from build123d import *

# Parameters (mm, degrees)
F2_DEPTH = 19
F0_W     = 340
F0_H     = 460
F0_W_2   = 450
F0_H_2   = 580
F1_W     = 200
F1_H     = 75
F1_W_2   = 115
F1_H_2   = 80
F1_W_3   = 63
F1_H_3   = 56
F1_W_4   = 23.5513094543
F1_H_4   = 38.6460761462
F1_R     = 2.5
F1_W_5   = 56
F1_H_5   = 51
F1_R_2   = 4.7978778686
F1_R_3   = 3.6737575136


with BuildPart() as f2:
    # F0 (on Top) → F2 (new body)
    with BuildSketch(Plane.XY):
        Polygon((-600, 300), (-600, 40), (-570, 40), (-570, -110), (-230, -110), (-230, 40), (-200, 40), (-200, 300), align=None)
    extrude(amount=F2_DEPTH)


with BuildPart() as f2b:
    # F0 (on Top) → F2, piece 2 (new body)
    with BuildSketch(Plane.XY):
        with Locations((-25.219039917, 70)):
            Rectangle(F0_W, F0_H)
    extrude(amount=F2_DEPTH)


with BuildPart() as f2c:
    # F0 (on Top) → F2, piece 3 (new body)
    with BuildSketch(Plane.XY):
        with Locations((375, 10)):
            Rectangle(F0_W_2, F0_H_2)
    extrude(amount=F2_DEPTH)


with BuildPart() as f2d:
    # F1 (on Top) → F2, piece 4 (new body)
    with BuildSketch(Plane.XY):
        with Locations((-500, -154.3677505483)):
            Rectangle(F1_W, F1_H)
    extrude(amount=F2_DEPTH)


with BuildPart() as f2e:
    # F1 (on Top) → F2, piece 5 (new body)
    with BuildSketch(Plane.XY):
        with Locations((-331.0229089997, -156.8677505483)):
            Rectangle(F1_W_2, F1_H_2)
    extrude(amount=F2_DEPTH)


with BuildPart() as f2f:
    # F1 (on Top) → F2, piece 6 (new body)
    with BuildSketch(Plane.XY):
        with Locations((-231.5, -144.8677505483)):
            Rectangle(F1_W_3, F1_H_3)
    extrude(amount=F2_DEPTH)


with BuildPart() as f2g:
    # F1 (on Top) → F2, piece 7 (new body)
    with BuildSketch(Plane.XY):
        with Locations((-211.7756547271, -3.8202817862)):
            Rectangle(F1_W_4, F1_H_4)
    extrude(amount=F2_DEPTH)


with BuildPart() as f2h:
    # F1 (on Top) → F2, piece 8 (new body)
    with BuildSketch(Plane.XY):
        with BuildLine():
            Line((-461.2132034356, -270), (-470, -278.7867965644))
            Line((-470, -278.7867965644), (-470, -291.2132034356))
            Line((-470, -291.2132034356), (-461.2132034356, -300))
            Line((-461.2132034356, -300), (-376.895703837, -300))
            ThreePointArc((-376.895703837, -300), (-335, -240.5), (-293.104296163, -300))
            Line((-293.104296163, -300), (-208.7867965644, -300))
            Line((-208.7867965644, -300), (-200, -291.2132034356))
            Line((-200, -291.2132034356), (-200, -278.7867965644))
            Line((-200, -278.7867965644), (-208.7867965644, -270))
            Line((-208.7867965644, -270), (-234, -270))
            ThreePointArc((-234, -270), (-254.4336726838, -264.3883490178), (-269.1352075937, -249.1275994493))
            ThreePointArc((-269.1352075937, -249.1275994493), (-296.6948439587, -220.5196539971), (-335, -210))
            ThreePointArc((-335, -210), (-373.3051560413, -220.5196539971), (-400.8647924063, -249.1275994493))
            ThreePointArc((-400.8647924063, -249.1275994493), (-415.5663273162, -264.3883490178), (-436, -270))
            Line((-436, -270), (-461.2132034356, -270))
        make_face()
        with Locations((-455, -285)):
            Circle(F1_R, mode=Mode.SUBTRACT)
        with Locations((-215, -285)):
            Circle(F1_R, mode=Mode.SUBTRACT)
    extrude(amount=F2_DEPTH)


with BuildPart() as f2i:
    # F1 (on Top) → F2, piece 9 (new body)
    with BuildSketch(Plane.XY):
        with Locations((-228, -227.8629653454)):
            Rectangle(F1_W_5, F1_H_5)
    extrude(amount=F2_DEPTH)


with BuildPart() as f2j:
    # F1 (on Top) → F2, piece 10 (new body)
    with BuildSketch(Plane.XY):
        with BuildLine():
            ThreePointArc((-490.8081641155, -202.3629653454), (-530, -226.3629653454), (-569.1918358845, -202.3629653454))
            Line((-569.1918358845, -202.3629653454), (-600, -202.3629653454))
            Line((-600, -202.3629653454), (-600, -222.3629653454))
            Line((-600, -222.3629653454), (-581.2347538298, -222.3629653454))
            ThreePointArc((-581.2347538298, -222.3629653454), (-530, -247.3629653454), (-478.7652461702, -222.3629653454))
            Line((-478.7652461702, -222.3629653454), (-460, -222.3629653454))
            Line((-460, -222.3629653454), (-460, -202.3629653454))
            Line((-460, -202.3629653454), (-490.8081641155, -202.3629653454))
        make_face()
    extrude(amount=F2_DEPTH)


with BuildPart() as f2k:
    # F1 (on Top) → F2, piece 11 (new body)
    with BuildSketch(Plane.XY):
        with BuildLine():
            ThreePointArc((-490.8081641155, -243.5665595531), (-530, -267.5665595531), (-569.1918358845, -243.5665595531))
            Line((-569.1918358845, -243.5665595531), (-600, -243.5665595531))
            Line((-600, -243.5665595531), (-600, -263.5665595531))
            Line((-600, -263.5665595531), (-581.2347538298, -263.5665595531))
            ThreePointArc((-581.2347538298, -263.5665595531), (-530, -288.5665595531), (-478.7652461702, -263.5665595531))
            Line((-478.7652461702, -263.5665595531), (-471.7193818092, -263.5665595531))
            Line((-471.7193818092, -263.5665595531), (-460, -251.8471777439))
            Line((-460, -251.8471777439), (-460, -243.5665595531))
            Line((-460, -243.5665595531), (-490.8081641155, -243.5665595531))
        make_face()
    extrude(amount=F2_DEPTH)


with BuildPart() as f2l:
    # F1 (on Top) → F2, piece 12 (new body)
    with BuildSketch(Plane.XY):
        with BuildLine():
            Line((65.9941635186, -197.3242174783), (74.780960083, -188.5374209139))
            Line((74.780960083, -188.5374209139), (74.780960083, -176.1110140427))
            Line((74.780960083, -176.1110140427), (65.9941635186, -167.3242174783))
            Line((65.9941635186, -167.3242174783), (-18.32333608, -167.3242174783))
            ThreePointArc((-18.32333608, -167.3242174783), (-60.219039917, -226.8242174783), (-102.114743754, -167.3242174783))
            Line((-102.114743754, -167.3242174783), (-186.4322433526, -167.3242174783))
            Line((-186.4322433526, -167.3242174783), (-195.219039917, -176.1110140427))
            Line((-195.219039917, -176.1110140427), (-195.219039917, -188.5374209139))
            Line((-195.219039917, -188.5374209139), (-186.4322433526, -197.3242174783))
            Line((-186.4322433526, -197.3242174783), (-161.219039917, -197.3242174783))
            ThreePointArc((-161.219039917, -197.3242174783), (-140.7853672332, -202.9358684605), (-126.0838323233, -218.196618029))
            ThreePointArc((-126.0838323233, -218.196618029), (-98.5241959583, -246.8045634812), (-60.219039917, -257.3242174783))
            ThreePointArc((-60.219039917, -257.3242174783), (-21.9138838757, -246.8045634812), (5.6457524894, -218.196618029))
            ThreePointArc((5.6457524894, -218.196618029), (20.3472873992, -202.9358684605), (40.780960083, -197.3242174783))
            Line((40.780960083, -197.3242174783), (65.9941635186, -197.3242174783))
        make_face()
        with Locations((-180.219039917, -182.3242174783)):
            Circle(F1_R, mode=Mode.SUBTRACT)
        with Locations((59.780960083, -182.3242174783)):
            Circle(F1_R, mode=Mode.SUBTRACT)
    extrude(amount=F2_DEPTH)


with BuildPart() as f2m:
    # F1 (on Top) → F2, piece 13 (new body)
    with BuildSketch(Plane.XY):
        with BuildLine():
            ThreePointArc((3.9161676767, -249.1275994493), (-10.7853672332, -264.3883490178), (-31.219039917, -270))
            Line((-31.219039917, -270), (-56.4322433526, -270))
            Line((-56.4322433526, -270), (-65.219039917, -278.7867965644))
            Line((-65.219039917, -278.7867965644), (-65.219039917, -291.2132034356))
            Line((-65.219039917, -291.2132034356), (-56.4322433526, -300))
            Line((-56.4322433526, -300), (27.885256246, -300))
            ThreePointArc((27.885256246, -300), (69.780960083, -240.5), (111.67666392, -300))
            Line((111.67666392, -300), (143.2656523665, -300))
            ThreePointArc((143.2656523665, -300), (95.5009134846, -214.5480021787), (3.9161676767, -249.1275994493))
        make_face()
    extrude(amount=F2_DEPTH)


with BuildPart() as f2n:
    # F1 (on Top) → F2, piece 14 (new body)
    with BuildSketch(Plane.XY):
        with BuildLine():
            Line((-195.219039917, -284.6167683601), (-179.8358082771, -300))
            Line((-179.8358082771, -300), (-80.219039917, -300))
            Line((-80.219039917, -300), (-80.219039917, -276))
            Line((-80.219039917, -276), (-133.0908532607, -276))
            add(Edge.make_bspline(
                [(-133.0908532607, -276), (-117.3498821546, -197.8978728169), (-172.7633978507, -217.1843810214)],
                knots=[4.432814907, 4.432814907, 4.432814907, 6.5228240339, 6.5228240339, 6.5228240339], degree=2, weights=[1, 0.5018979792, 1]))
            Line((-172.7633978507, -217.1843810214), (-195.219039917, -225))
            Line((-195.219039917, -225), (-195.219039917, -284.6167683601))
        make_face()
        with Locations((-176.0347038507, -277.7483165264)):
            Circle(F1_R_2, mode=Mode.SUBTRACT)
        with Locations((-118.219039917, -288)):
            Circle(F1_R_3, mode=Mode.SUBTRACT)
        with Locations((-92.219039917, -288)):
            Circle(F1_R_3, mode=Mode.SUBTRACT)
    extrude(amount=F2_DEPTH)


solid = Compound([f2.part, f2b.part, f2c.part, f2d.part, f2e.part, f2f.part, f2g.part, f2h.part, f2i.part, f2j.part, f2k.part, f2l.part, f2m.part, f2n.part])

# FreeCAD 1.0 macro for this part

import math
import FreeCAD as App
import Part
import Sketcher
Q = App.Units.Quantity


def add_polygon(sketch, points):
    """Adds a closed chain of lines whose ends are joined by coincident constraints."""
    first, n = sketch.GeometryCount, len(points)
    for a, b in zip(points, points[1:] + points[:1]):
        sketch.addGeometry(Part.LineSegment(App.Vector(*a, 0), App.Vector(*b, 0)), False)
    for i in range(n):
        sketch.addConstraint(Sketcher.Constraint("Coincident", first + i, 2, first + (i + 1) % n, 1))

doc = App.newDocument("Part")
body = doc.addObject("PartDesign::Body", "Body")

sketch1 = body.newObject("Sketcher::SketchObject", "Sketch")
sketch1.AttachmentSupport = (doc.getObject("XY_Plane"), [""])
sketch1.MapMode = "FlatFace"
add_polygon(sketch1, [(-600, 300), (-600, 40), (-570, 40), (-570, -110), (-230, -110), (-230, 40), (-200, 40), (-200, 300)])
sketch1.addConstraint(Sketcher.Constraint("Vertical", 0))
sketch1.addConstraint(Sketcher.Constraint("Horizontal", 1))
sketch1.addConstraint(Sketcher.Constraint("Vertical", 2))
sketch1.addConstraint(Sketcher.Constraint("Horizontal", 3))
sketch1.addConstraint(Sketcher.Constraint("Vertical", 4))
sketch1.addConstraint(Sketcher.Constraint("Horizontal", 5))
sketch1.addConstraint(Sketcher.Constraint("Vertical", 6))
sketch1.addConstraint(Sketcher.Constraint("Horizontal", 7))
sketch1.addConstraint(Sketcher.Constraint("Horizontal", 1, 2, 4, 2))
sketch1.addConstraint(Sketcher.Constraint("Equal", 1, 5))
sketch1.addConstraint(Sketcher.Constraint("DistanceX", 1, 1, 1, 2, 30.0))
sketch1.addConstraint(Sketcher.Constraint("DistanceX", 3, 1, 3, 2, 340.0))
sketch1.addConstraint(Sketcher.Constraint("DistanceY", 0, 2, 0, 1, 260.0))
sketch1.addConstraint(Sketcher.Constraint("DistanceY", 2, 2, 2, 1, 150.0))
sketch1.addConstraint(Sketcher.Constraint("DistanceX", 0, 2, -1, 1, 600.0))
sketch1.addConstraint(Sketcher.Constraint("DistanceY", -1, 1, 0, 2, 40.0))
pad1 = body.newObject("PartDesign::Pad", "Pad")
pad1.Profile = sketch1
pad1.Length = 19
body2 = doc.addObject("PartDesign::Body", "Body001")

sketch2 = body2.newObject("Sketcher::SketchObject", "Sketch001")
sketch2.AttachmentSupport = (doc.getObject("XY_Plane001"), [""])
sketch2.MapMode = "FlatFace"
add_polygon(sketch2, [(-195.21904, 300), (-195.21904, -160), (144.78096, -160), (144.78096, 300)])
sketch2.addConstraint(Sketcher.Constraint("Vertical", 0))
sketch2.addConstraint(Sketcher.Constraint("Horizontal", 1))
sketch2.addConstraint(Sketcher.Constraint("Vertical", 2))
sketch2.addConstraint(Sketcher.Constraint("Horizontal", 3))
sketch2.addConstraint(Sketcher.Constraint("DistanceX", 1, 1, 1, 2, 340.0))
sketch2.addConstraint(Sketcher.Constraint("DistanceY", 0, 2, 0, 1, 460.0))
sketch2.addConstraint(Sketcher.Constraint("DistanceY", 0, 2, -1, 1, 160.0))
sketch2.addConstraint(Sketcher.Constraint("DistanceX", 0, 2, -1, 1, 195.21904))
pad2 = body2.newObject("PartDesign::Pad", "Pad001")
pad2.Profile = sketch2
pad2.Length = 19
body3 = doc.addObject("PartDesign::Body", "Body002")

sketch3 = body3.newObject("Sketcher::SketchObject", "Sketch002")
sketch3.AttachmentSupport = (doc.getObject("XY_Plane002"), [""])
sketch3.MapMode = "FlatFace"
add_polygon(sketch3, [(150, 300), (150, -280), (600, -280), (600, 300)])
sketch3.addConstraint(Sketcher.Constraint("Vertical", 0))
sketch3.addConstraint(Sketcher.Constraint("Horizontal", 1))
sketch3.addConstraint(Sketcher.Constraint("Vertical", 2))
sketch3.addConstraint(Sketcher.Constraint("Horizontal", 3))
sketch3.addConstraint(Sketcher.Constraint("DistanceX", 1, 1, 1, 2, 450.0))
sketch3.addConstraint(Sketcher.Constraint("DistanceY", 0, 2, 0, 1, 580.0))
sketch3.addConstraint(Sketcher.Constraint("DistanceX", -1, 1, 0, 2, 150.0))
sketch3.addConstraint(Sketcher.Constraint("DistanceY", 0, 2, -1, 1, 280.0))
pad3 = body3.newObject("PartDesign::Pad", "Pad002")
pad3.Profile = sketch3
pad3.Length = 19
body4 = doc.addObject("PartDesign::Body", "Body003")

sketch4 = body4.newObject("Sketcher::SketchObject", "Sketch003")
sketch4.AttachmentSupport = (doc.getObject("XY_Plane003"), [""])
sketch4.MapMode = "FlatFace"
add_polygon(sketch4, [(-600, -116.867751), (-600, -191.867751), (-400, -191.867751), (-400, -116.867751)])
sketch4.addConstraint(Sketcher.Constraint("Vertical", 0))
sketch4.addConstraint(Sketcher.Constraint("Horizontal", 1))
sketch4.addConstraint(Sketcher.Constraint("Vertical", 2))
sketch4.addConstraint(Sketcher.Constraint("Horizontal", 3))
sketch4.addConstraint(Sketcher.Constraint("DistanceX", 1, 1, 1, 2, 200.0))
sketch4.addConstraint(Sketcher.Constraint("DistanceY", 0, 2, 0, 1, 75.0))
sketch4.addConstraint(Sketcher.Constraint("DistanceX", 0, 2, -1, 1, 600.0))
sketch4.addConstraint(Sketcher.Constraint("DistanceY", 0, 2, -1, 1, 191.867751))
pad4 = body4.newObject("PartDesign::Pad", "Pad003")
pad4.Profile = sketch4
pad4.Length = 19
body5 = doc.addObject("PartDesign::Body", "Body004")

sketch5 = body5.newObject("Sketcher::SketchObject", "Sketch004")
sketch5.AttachmentSupport = (doc.getObject("XY_Plane004"), [""])
sketch5.MapMode = "FlatFace"
add_polygon(sketch5, [(-388.522909, -116.867751), (-388.522909, -196.867751), (-273.522909, -196.867751), (-273.522909, -116.867751)])
sketch5.addConstraint(Sketcher.Constraint("Vertical", 0))
sketch5.addConstraint(Sketcher.Constraint("Horizontal", 1))
sketch5.addConstraint(Sketcher.Constraint("Vertical", 2))
sketch5.addConstraint(Sketcher.Constraint("Horizontal", 3))
sketch5.addConstraint(Sketcher.Constraint("DistanceX", 1, 1, 1, 2, 115.0))
sketch5.addConstraint(Sketcher.Constraint("DistanceY", 0, 2, 0, 1, 80.0))
sketch5.addConstraint(Sketcher.Constraint("DistanceX", 0, 2, -1, 1, 388.522909))
sketch5.addConstraint(Sketcher.Constraint("DistanceY", 0, 2, -1, 1, 196.867751))
pad5 = body5.newObject("PartDesign::Pad", "Pad004")
pad5.Profile = sketch5
pad5.Length = 19
body6 = doc.addObject("PartDesign::Body", "Body005")

sketch6 = body6.newObject("Sketcher::SketchObject", "Sketch005")
sketch6.AttachmentSupport = (doc.getObject("XY_Plane005"), [""])
sketch6.MapMode = "FlatFace"
add_polygon(sketch6, [(-263, -116.867751), (-263, -172.867751), (-200, -172.867751), (-200, -116.867751)])
sketch6.addConstraint(Sketcher.Constraint("Vertical", 0))
sketch6.addConstraint(Sketcher.Constraint("Horizontal", 1))
sketch6.addConstraint(Sketcher.Constraint("Vertical", 2))
sketch6.addConstraint(Sketcher.Constraint("Horizontal", 3))
sketch6.addConstraint(Sketcher.Constraint("DistanceX", 1, 1, 1, 2, 63.0))
sketch6.addConstraint(Sketcher.Constraint("DistanceY", 0, 2, 0, 1, 56.0))
sketch6.addConstraint(Sketcher.Constraint("DistanceX", 0, 2, -1, 1, 263.0))
sketch6.addConstraint(Sketcher.Constraint("DistanceY", 0, 2, -1, 1, 172.867751))
pad6 = body6.newObject("PartDesign::Pad", "Pad005")
pad6.Profile = sketch6
pad6.Length = 19
body7 = doc.addObject("PartDesign::Body", "Body006")

sketch7 = body7.newObject("Sketcher::SketchObject", "Sketch006")
sketch7.AttachmentSupport = (doc.getObject("XY_Plane006"), [""])
sketch7.MapMode = "FlatFace"
add_polygon(sketch7, [(-223.551309, 15.502756), (-223.551309, -23.14332), (-200, -23.14332), (-200, 15.502756)])
sketch7.addConstraint(Sketcher.Constraint("Vertical", 0))
sketch7.addConstraint(Sketcher.Constraint("Horizontal", 1))
sketch7.addConstraint(Sketcher.Constraint("Vertical", 2))
sketch7.addConstraint(Sketcher.Constraint("Horizontal", 3))
sketch7.addConstraint(Sketcher.Constraint("DistanceX", 1, 2, -1, 1, 200.0))
sketch7.addConstraint(Sketcher.Constraint("DistanceX", 1, 1, 1, 2, 23.551309))
sketch7.addConstraint(Sketcher.Constraint("DistanceY", 0, 2, 0, 1, 38.646076))
sketch7.addConstraint(Sketcher.Constraint("DistanceY", 0, 2, -1, 1, 23.14332))
pad7 = body7.newObject("PartDesign::Pad", "Pad006")
pad7.Profile = sketch7
pad7.Length = 19
body8 = doc.addObject("PartDesign::Body", "Body007")

sketch8 = body8.newObject("Sketcher::SketchObject", "Sketch007")
sketch8.AttachmentSupport = (doc.getObject("XY_Plane007"), [""])
sketch8.MapMode = "FlatFace"
sketch8.addGeometry(Part.LineSegment(App.Vector(-461.213203, -270, 0), App.Vector(-470, -278.786797, 0)), False)
sketch8.addGeometry(Part.LineSegment(App.Vector(-470, -278.786797, 0), App.Vector(-470, -291.213203, 0)), False)
sketch8.addGeometry(Part.LineSegment(App.Vector(-470, -291.213203, 0), App.Vector(-461.213203, -300, 0)), False)
sketch8.addGeometry(Part.LineSegment(App.Vector(-461.213203, -300, 0), App.Vector(-376.895704, -300, 0)), False)
sketch8.addGeometry(Part.ArcOfCircle(Part.Circle(App.Vector(-335, -285, 0), App.Vector(0, 0, 1), 44.5), math.radians(-19.698989), math.radians(199.698989)), False)
sketch8.addGeometry(Part.LineSegment(App.Vector(-293.104296, -300, 0), App.Vector(-208.786797, -300, 0)), False)
sketch8.addGeometry(Part.LineSegment(App.Vector(-208.786797, -300, 0), App.Vector(-200, -291.213203, 0)), False)
sketch8.addGeometry(Part.LineSegment(App.Vector(-200, -291.213203, 0), App.Vector(-200, -278.786797, 0)), False)
sketch8.addGeometry(Part.LineSegment(App.Vector(-200, -278.786797, 0), App.Vector(-208.786797, -270, 0)), False)
sketch8.addGeometry(Part.LineSegment(App.Vector(-208.786797, -270, 0), App.Vector(-234, -270, 0)), False)
sketch8.addGeometry(Part.ArcOfCircle(Part.Circle(App.Vector(-234, -229.991667, 0), App.Vector(0, 0, 1), 40.008333), math.radians(-151.425655), math.radians(-90)), False)
sketch8.addGeometry(Part.ArcOfCircle(Part.Circle(App.Vector(-335, -285, 0), App.Vector(0, 0, 1), 75), math.radians(28.574345), math.radians(90)), False)
sketch8.addGeometry(Part.ArcOfCircle(Part.Circle(App.Vector(-335, -285, 0), App.Vector(0, 0, 1), 75), math.radians(90), math.radians(151.425655)), False)
sketch8.addGeometry(Part.ArcOfCircle(Part.Circle(App.Vector(-436, -229.991667, 0), App.Vector(0, 0, 1), 40.008333), math.radians(-90), math.radians(-28.574345)), False)
sketch8.addGeometry(Part.LineSegment(App.Vector(-436, -270, 0), App.Vector(-461.213203, -270, 0)), False)
sketch8.addGeometry(Part.Circle(App.Vector(-455, -285, 0), App.Vector(0, 0, 1), 2.5), False)
sketch8.addGeometry(Part.Circle(App.Vector(-215, -285, 0), App.Vector(0, 0, 1), 2.5), False)
sketch8.addConstraint(Sketcher.Constraint("Coincident", 0, 2, 1, 1))
sketch8.addConstraint(Sketcher.Constraint("Coincident", 1, 2, 2, 1))
sketch8.addConstraint(Sketcher.Constraint("Coincident", 2, 2, 3, 1))
sketch8.addConstraint(Sketcher.Constraint("Coincident", 3, 2, 4, 2))
sketch8.addConstraint(Sketcher.Constraint("Coincident", 4, 1, 5, 1))
sketch8.addConstraint(Sketcher.Constraint("Coincident", 5, 2, 6, 1))
sketch8.addConstraint(Sketcher.Constraint("Coincident", 6, 2, 7, 1))
sketch8.addConstraint(Sketcher.Constraint("Coincident", 7, 2, 8, 1))
sketch8.addConstraint(Sketcher.Constraint("Coincident", 8, 2, 9, 1))
sketch8.addConstraint(Sketcher.Constraint("Tangent", 9, 2, 10, 2))
sketch8.addConstraint(Sketcher.Constraint("Tangent", 10, 1, 11, 1))
sketch8.addConstraint(Sketcher.Constraint("Tangent", 11, 2, 12, 1))
sketch8.addConstraint(Sketcher.Constraint("Tangent", 12, 2, 13, 2))
sketch8.addConstraint(Sketcher.Constraint("Tangent", 13, 1, 14, 1))
sketch8.addConstraint(Sketcher.Constraint("Coincident", 14, 2, 0, 1))
sketch8.addConstraint(Sketcher.Constraint("Vertical", 1))
sketch8.addConstraint(Sketcher.Constraint("Horizontal", 3))
sketch8.addConstraint(Sketcher.Constraint("Horizontal", 5))
sketch8.addConstraint(Sketcher.Constraint("Vertical", 7))
sketch8.addConstraint(Sketcher.Constraint("Horizontal", 9))
sketch8.addConstraint(Sketcher.Constraint("Horizontal", 14))
sketch8.addConstraint(Sketcher.Constraint("Coincident", 11, 3, 4, 3))
sketch8.addConstraint(Sketcher.Constraint("Equal", 11, 12))
sketch8.addConstraint(Sketcher.Constraint("Equal", 10, 13))
sketch8.addConstraint(Sketcher.Constraint("Equal", 15, 16))
sketch8.addConstraint(Sketcher.Constraint("Perpendicular", 0, 2))
sketch8.addConstraint(Sketcher.Constraint("Perpendicular", 2, 6))
sketch8.addConstraint(Sketcher.Constraint("Perpendicular", 6, 8))
sketch8.addConstraint(Sketcher.Constraint("Horizontal", 10, 3, 13, 3))
sketch8.addConstraint(Sketcher.Constraint("Horizontal", 12, 3, 15, 3))
sketch8.addConstraint(Sketcher.Constraint("Horizontal", 15, 3, 16, 3))
sketch8.addConstraint(Sketcher.Constraint("Horizontal", 3, 2, 4, 1))
sketch8.addConstraint(Sketcher.Constraint("Horizontal", 1, 2, 6, 2))
sketch8.addConstraint(Sketcher.Constraint("Horizontal", 0, 2, 7, 2))
sketch8.addConstraint(Sketcher.Constraint("Vertical", 5, 2, 8, 2))
sketch8.addConstraint(Sketcher.Constraint("Vertical", 12, 3, 11, 2))
sketch8.addConstraint(Sketcher.Constraint("Vertical", 2, 2, 14, 2))
sketch8.addConstraint(Sketcher.Constraint("Equal", 3, 5))
sketch8.addConstraint(Sketcher.Constraint("Diameter", 15, 5.0))
sketch8.addConstraint(Sketcher.Constraint("Radius", 11, 75.0))
sketch8.addConstraint(Sketcher.Constraint("Radius", 4, 44.5))
sketch8.addConstraint(Sketcher.Constraint("DistanceX", 4, 3, -1, 1, 335.0))
sketch8.addConstraint(Sketcher.Constraint("DistanceY", 4, 3, -1, 1, 285.0))
sketch8.addConstraint(Sketcher.Constraint("DistanceX", 10, 3, -1, 1, 234.0))
sketch8.addConstraint(Sketcher.Constraint("DistanceX", 15, 3, -1, 1, 455.0))
sketch8.addConstraint(Sketcher.Constraint("DistanceX", 16, 3, -1, 1, 215.0))
sketch8.addConstraint(Sketcher.Constraint("DistanceX", 0, 2, -1, 1, 470.0))
sketch8.addConstraint(Sketcher.Constraint("DistanceY", 2, 2, -1, 1, 300.0))
sketch8.addConstraint(Sketcher.Constraint("DistanceY", 8, 2, -1, 1, 270.0))
sketch8.addConstraint(Sketcher.Constraint("DistanceX", 3, 1, 3, 2, 84.3175))
pad8 = body8.newObject("PartDesign::Pad", "Pad007")
pad8.Profile = sketch8
pad8.Length = 19
body9 = doc.addObject("PartDesign::Body", "Body008")

sketch9 = body9.newObject("Sketcher::SketchObject", "Sketch008")
sketch9.AttachmentSupport = (doc.getObject("XY_Plane008"), [""])
sketch9.MapMode = "FlatFace"
add_polygon(sketch9, [(-256, -202.362965), (-256, -253.362965), (-200, -253.362965), (-200, -202.362965)])
sketch9.addConstraint(Sketcher.Constraint("Vertical", 0))
sketch9.addConstraint(Sketcher.Constraint("Horizontal", 1))
sketch9.addConstraint(Sketcher.Constraint("Vertical", 2))
sketch9.addConstraint(Sketcher.Constraint("Horizontal", 3))
sketch9.addConstraint(Sketcher.Constraint("DistanceX", 1, 1, 1, 2, 56.0))
sketch9.addConstraint(Sketcher.Constraint("DistanceY", 0, 2, 0, 1, 51.0))
sketch9.addConstraint(Sketcher.Constraint("DistanceX", 0, 2, -1, 1, 256.0))
sketch9.addConstraint(Sketcher.Constraint("DistanceY", 0, 2, -1, 1, 253.362965))
pad9 = body9.newObject("PartDesign::Pad", "Pad008")
pad9.Profile = sketch9
pad9.Length = 19
body10 = doc.addObject("PartDesign::Body", "Body009")

sketch10 = body10.newObject("Sketcher::SketchObject", "Sketch009")
sketch10.AttachmentSupport = (doc.getObject("XY_Plane009"), [""])
sketch10.MapMode = "FlatFace"
sketch10.addGeometry(Part.ArcOfCircle(Part.Circle(App.Vector(-530, -182.362965, 0), App.Vector(0, 0, 1), 44), math.radians(-152.964308), math.radians(-27.035692)), False)
sketch10.addGeometry(Part.LineSegment(App.Vector(-569.191836, -202.362965, 0), App.Vector(-600, -202.362965, 0)), False)
sketch10.addGeometry(Part.LineSegment(App.Vector(-600, -202.362965, 0), App.Vector(-600, -222.362965, 0)), False)
sketch10.addGeometry(Part.LineSegment(App.Vector(-600, -222.362965, 0), App.Vector(-581.234754, -222.362965, 0)), False)
sketch10.addGeometry(Part.ArcOfCircle(Part.Circle(App.Vector(-530, -182.362965, 0), App.Vector(0, 0, 1), 65), math.radians(-142.020128), math.radians(-37.979872)), False)
sketch10.addGeometry(Part.LineSegment(App.Vector(-478.765246, -222.362965, 0), App.Vector(-460, -222.362965, 0)), False)
sketch10.addGeometry(Part.LineSegment(App.Vector(-460, -222.362965, 0), App.Vector(-460, -202.362965, 0)), False)
sketch10.addGeometry(Part.LineSegment(App.Vector(-460, -202.362965, 0), App.Vector(-490.808164, -202.362965, 0)), False)
sketch10.addConstraint(Sketcher.Constraint("Coincident", 0, 1, 1, 1))
sketch10.addConstraint(Sketcher.Constraint("Coincident", 1, 2, 2, 1))
sketch10.addConstraint(Sketcher.Constraint("Coincident", 2, 2, 3, 1))
sketch10.addConstraint(Sketcher.Constraint("Coincident", 3, 2, 4, 1))
sketch10.addConstraint(Sketcher.Constraint("Coincident", 4, 2, 5, 1))
sketch10.addConstraint(Sketcher.Constraint("Coincident", 5, 2, 6, 1))
sketch10.addConstraint(Sketcher.Constraint("Coincident", 6, 2, 7, 1))
sketch10.addConstraint(Sketcher.Constraint("Coincident", 7, 2, 0, 2))
sketch10.addConstraint(Sketcher.Constraint("Horizontal", 1))
sketch10.addConstraint(Sketcher.Constraint("Vertical", 2))
sketch10.addConstraint(Sketcher.Constraint("Horizontal", 3))
sketch10.addConstraint(Sketcher.Constraint("Horizontal", 5))
sketch10.addConstraint(Sketcher.Constraint("Vertical", 6))
sketch10.addConstraint(Sketcher.Constraint("Horizontal", 7))
sketch10.addConstraint(Sketcher.Constraint("Coincident", 4, 3, 0, 3))
sketch10.addConstraint(Sketcher.Constraint("Horizontal", 3, 2, 4, 2))
sketch10.addConstraint(Sketcher.Constraint("Horizontal", 1, 2, 6, 2))
sketch10.addConstraint(Sketcher.Constraint("Equal", 3, 5))
sketch10.addConstraint(Sketcher.Constraint("Radius", 0, 44.0))
sketch10.addConstraint(Sketcher.Constraint("Radius", 4, 65.0))
sketch10.addConstraint(Sketcher.Constraint("DistanceY", 2, 2, 2, 1, 20.0))
sketch10.addConstraint(Sketcher.Constraint("DistanceX", 0, 3, -1, 1, 530.0))
sketch10.addConstraint(Sketcher.Constraint("DistanceX", 1, 2, -1, 1, 600.0))
sketch10.addConstraint(Sketcher.Constraint("DistanceY", 0, 1, 0, 3, 20.0))
sketch10.addConstraint(Sketcher.Constraint("DistanceY", 0, 3, -1, 1, 182.362965))
pad10 = body10.newObject("PartDesign::Pad", "Pad009")
pad10.Profile = sketch10
pad10.Length = 19
body11 = doc.addObject("PartDesign::Body", "Body010")

sketch11 = body11.newObject("Sketcher::SketchObject", "Sketch010")
sketch11.AttachmentSupport = (doc.getObject("XY_Plane010"), [""])
sketch11.MapMode = "FlatFace"
sketch11.addGeometry(Part.ArcOfCircle(Part.Circle(App.Vector(-530, -223.56656, 0), App.Vector(0, 0, 1), 44), math.radians(-152.964308), math.radians(-27.035692)), False)
sketch11.addGeometry(Part.LineSegment(App.Vector(-569.191836, -243.56656, 0), App.Vector(-600, -243.56656, 0)), False)
sketch11.addGeometry(Part.LineSegment(App.Vector(-600, -243.56656, 0), App.Vector(-600, -263.56656, 0)), False)
sketch11.addGeometry(Part.LineSegment(App.Vector(-600, -263.56656, 0), App.Vector(-581.234754, -263.56656, 0)), False)
sketch11.addGeometry(Part.ArcOfCircle(Part.Circle(App.Vector(-530, -223.56656, 0), App.Vector(0, 0, 1), 65), math.radians(-142.020128), math.radians(-37.979872)), False)
sketch11.addGeometry(Part.LineSegment(App.Vector(-478.765246, -263.56656, 0), App.Vector(-471.719382, -263.56656, 0)), False)
sketch11.addGeometry(Part.LineSegment(App.Vector(-471.719382, -263.56656, 0), App.Vector(-460, -251.847178, 0)), False)
sketch11.addGeometry(Part.LineSegment(App.Vector(-460, -251.847178, 0), App.Vector(-460, -243.56656, 0)), False)
sketch11.addGeometry(Part.LineSegment(App.Vector(-460, -243.56656, 0), App.Vector(-490.808164, -243.56656, 0)), False)
sketch11.addConstraint(Sketcher.Constraint("Coincident", 0, 1, 1, 1))
sketch11.addConstraint(Sketcher.Constraint("Coincident", 1, 2, 2, 1))
sketch11.addConstraint(Sketcher.Constraint("Coincident", 2, 2, 3, 1))
sketch11.addConstraint(Sketcher.Constraint("Coincident", 3, 2, 4, 1))
sketch11.addConstraint(Sketcher.Constraint("Coincident", 4, 2, 5, 1))
sketch11.addConstraint(Sketcher.Constraint("Coincident", 5, 2, 6, 1))
sketch11.addConstraint(Sketcher.Constraint("Coincident", 6, 2, 7, 1))
sketch11.addConstraint(Sketcher.Constraint("Coincident", 7, 2, 8, 1))
sketch11.addConstraint(Sketcher.Constraint("Coincident", 8, 2, 0, 2))
sketch11.addConstraint(Sketcher.Constraint("Horizontal", 1))
sketch11.addConstraint(Sketcher.Constraint("Vertical", 2))
sketch11.addConstraint(Sketcher.Constraint("Horizontal", 3))
sketch11.addConstraint(Sketcher.Constraint("Horizontal", 5))
sketch11.addConstraint(Sketcher.Constraint("Vertical", 7))
sketch11.addConstraint(Sketcher.Constraint("Horizontal", 8))
sketch11.addConstraint(Sketcher.Constraint("Coincident", 4, 3, 0, 3))
sketch11.addConstraint(Sketcher.Constraint("Horizontal", 3, 2, 4, 2))
sketch11.addConstraint(Sketcher.Constraint("Horizontal", 1, 2, 7, 2))
sketch11.addConstraint(Sketcher.Constraint("Equal", 1, 8))
sketch11.addConstraint(Sketcher.Constraint("Radius", 0, 44.0))
sketch11.addConstraint(Sketcher.Constraint("Radius", 4, 65.0))
sketch11.addConstraint(Sketcher.Constraint("DistanceY", 2, 2, 2, 1, 20.0))
sketch11.addConstraint(Sketcher.Constraint("Angle", 6, Q("45 deg")))
sketch11.addConstraint(Sketcher.Constraint("DistanceX", 0, 3, -1, 1, 530.0))
sketch11.addConstraint(Sketcher.Constraint("DistanceX", 1, 2, -1, 1, 600.0))
sketch11.addConstraint(Sketcher.Constraint("DistanceY", 0, 1, 0, 3, 20.0))
sketch11.addConstraint(Sketcher.Constraint("DistanceY", 7, 1, 7, 2, 8.280618))
sketch11.addConstraint(Sketcher.Constraint("DistanceY", 0, 3, -1, 1, 223.56656))
pad11 = body11.newObject("PartDesign::Pad", "Pad010")
pad11.Profile = sketch11
pad11.Length = 19
body12 = doc.addObject("PartDesign::Body", "Body011")

sketch12 = body12.newObject("Sketcher::SketchObject", "Sketch011")
sketch12.AttachmentSupport = (doc.getObject("XY_Plane011"), [""])
sketch12.MapMode = "FlatFace"
sketch12.addGeometry(Part.LineSegment(App.Vector(65.994164, -197.324217, 0), App.Vector(74.78096, -188.537421, 0)), False)
sketch12.addGeometry(Part.LineSegment(App.Vector(74.78096, -188.537421, 0), App.Vector(74.78096, -176.111014, 0)), False)
sketch12.addGeometry(Part.LineSegment(App.Vector(74.78096, -176.111014, 0), App.Vector(65.994164, -167.324217, 0)), False)
sketch12.addGeometry(Part.LineSegment(App.Vector(65.994164, -167.324217, 0), App.Vector(-18.323336, -167.324217, 0)), False)
sketch12.addGeometry(Part.ArcOfCircle(Part.Circle(App.Vector(-60.21904, -182.324217, 0), App.Vector(0, 0, 1), 44.5), math.radians(160.301011), math.radians(379.698989)), False)
sketch12.addGeometry(Part.LineSegment(App.Vector(-102.114744, -167.324217, 0), App.Vector(-186.432243, -167.324217, 0)), False)
sketch12.addGeometry(Part.LineSegment(App.Vector(-186.432243, -167.324217, 0), App.Vector(-195.21904, -176.111014, 0)), False)
sketch12.addGeometry(Part.LineSegment(App.Vector(-195.21904, -176.111014, 0), App.Vector(-195.21904, -188.537421, 0)), False)
sketch12.addGeometry(Part.LineSegment(App.Vector(-195.21904, -188.537421, 0), App.Vector(-186.432243, -197.324217, 0)), False)
sketch12.addGeometry(Part.LineSegment(App.Vector(-186.432243, -197.324217, 0), App.Vector(-161.21904, -197.324217, 0)), False)
sketch12.addGeometry(Part.ArcOfCircle(Part.Circle(App.Vector(-161.21904, -237.332551, 0), App.Vector(0, 0, 1), 40.008333), math.radians(28.574345), math.radians(90)), False)
sketch12.addGeometry(Part.ArcOfCircle(Part.Circle(App.Vector(-60.21904, -182.324217, 0), App.Vector(0, 0, 1), 75), math.radians(-151.425655), math.radians(-90)), False)
sketch12.addGeometry(Part.ArcOfCircle(Part.Circle(App.Vector(-60.21904, -182.324217, 0), App.Vector(0, 0, 1), 75), math.radians(-90), math.radians(-28.574345)), False)
sketch12.addGeometry(Part.ArcOfCircle(Part.Circle(App.Vector(40.78096, -237.332551, 0), App.Vector(0, 0, 1), 40.008333), math.radians(90), math.radians(151.425655)), False)
sketch12.addGeometry(Part.LineSegment(App.Vector(40.78096, -197.324217, 0), App.Vector(65.994164, -197.324217, 0)), False)
sketch12.addGeometry(Part.Circle(App.Vector(-180.21904, -182.324217, 0), App.Vector(0, 0, 1), 2.5), False)
sketch12.addGeometry(Part.Circle(App.Vector(59.78096, -182.324217, 0), App.Vector(0, 0, 1), 2.5), False)
sketch12.addConstraint(Sketcher.Constraint("Coincident", 0, 2, 1, 1))
sketch12.addConstraint(Sketcher.Constraint("Coincident", 1, 2, 2, 1))
sketch12.addConstraint(Sketcher.Constraint("Coincident", 2, 2, 3, 1))
sketch12.addConstraint(Sketcher.Constraint("Coincident", 3, 2, 4, 2))
sketch12.addConstraint(Sketcher.Constraint("Coincident", 4, 1, 5, 1))
sketch12.addConstraint(Sketcher.Constraint("Coincident", 5, 2, 6, 1))
sketch12.addConstraint(Sketcher.Constraint("Coincident", 6, 2, 7, 1))
sketch12.addConstraint(Sketcher.Constraint("Coincident", 7, 2, 8, 1))
sketch12.addConstraint(Sketcher.Constraint("Coincident", 8, 2, 9, 1))
sketch12.addConstraint(Sketcher.Constraint("Tangent", 9, 2, 10, 2))
sketch12.addConstraint(Sketcher.Constraint("Tangent", 10, 1, 11, 1))
sketch12.addConstraint(Sketcher.Constraint("Tangent", 11, 2, 12, 1))
sketch12.addConstraint(Sketcher.Constraint("Tangent", 12, 2, 13, 2))
sketch12.addConstraint(Sketcher.Constraint("Tangent", 13, 1, 14, 1))
sketch12.addConstraint(Sketcher.Constraint("Coincident", 14, 2, 0, 1))
sketch12.addConstraint(Sketcher.Constraint("Vertical", 1))
sketch12.addConstraint(Sketcher.Constraint("Horizontal", 3))
sketch12.addConstraint(Sketcher.Constraint("Horizontal", 5))
sketch12.addConstraint(Sketcher.Constraint("Vertical", 7))
sketch12.addConstraint(Sketcher.Constraint("Horizontal", 9))
sketch12.addConstraint(Sketcher.Constraint("Horizontal", 14))
sketch12.addConstraint(Sketcher.Constraint("Coincident", 11, 3, 4, 3))
sketch12.addConstraint(Sketcher.Constraint("Equal", 11, 12))
sketch12.addConstraint(Sketcher.Constraint("Equal", 10, 13))
sketch12.addConstraint(Sketcher.Constraint("Equal", 15, 16))
sketch12.addConstraint(Sketcher.Constraint("Perpendicular", 0, 2))
sketch12.addConstraint(Sketcher.Constraint("Perpendicular", 2, 6))
sketch12.addConstraint(Sketcher.Constraint("Perpendicular", 6, 8))
sketch12.addConstraint(Sketcher.Constraint("Horizontal", 10, 3, 13, 3))
sketch12.addConstraint(Sketcher.Constraint("Horizontal", 12, 3, 15, 3))
sketch12.addConstraint(Sketcher.Constraint("Horizontal", 15, 3, 16, 3))
sketch12.addConstraint(Sketcher.Constraint("Horizontal", 3, 2, 4, 1))
sketch12.addConstraint(Sketcher.Constraint("Horizontal", 1, 2, 6, 2))
sketch12.addConstraint(Sketcher.Constraint("Horizontal", 0, 2, 7, 2))
sketch12.addConstraint(Sketcher.Constraint("Vertical", 5, 2, 8, 2))
sketch12.addConstraint(Sketcher.Constraint("Vertical", 12, 3, 11, 2))
sketch12.addConstraint(Sketcher.Constraint("Vertical", 2, 2, 14, 2))
sketch12.addConstraint(Sketcher.Constraint("Equal", 3, 5))
sketch12.addConstraint(Sketcher.Constraint("Diameter", 15, 5.0))
sketch12.addConstraint(Sketcher.Constraint("Radius", 11, 75.0))
sketch12.addConstraint(Sketcher.Constraint("Radius", 4, 44.5))
sketch12.addConstraint(Sketcher.Constraint("DistanceX", 10, 3, 4, 3, 101.0))
sketch12.addConstraint(Sketcher.Constraint("DistanceX", 15, 3, 10, 3, 19.0))
sketch12.addConstraint(Sketcher.Constraint("DistanceX", 13, 3, 16, 3, 19.0))
sketch12.addConstraint(Sketcher.Constraint("DistanceX", 16, 3, 0, 2, 15.0))
sketch12.addConstraint(Sketcher.Constraint("DistanceY", 16, 3, 2, 2, 15.0))
sketch12.addConstraint(Sketcher.Constraint("DistanceY", 8, 2, 15, 3, 15.0))
sketch12.addConstraint(Sketcher.Constraint("DistanceX", 3, 2, 3, 1, 84.3175))
sketch12.addConstraint(Sketcher.Constraint("DistanceX", 4, 3, -1, 1, 60.21904))
sketch12.addConstraint(Sketcher.Constraint("DistanceY", 10, 3, -1, 1, 237.332551))
pad12 = body12.newObject("PartDesign::Pad", "Pad011")
pad12.Profile = sketch12
pad12.Length = 19
body13 = doc.addObject("PartDesign::Body", "Body012")

sketch13 = body13.newObject("Sketcher::SketchObject", "Sketch012")
sketch13.AttachmentSupport = (doc.getObject("XY_Plane012"), [""])
sketch13.MapMode = "FlatFace"
sketch13.addGeometry(Part.ArcOfCircle(Part.Circle(App.Vector(-31.21904, -229.991667, 0), App.Vector(0, 0, 1), 40.008333), math.radians(-90), math.radians(-28.574345)), False)
sketch13.addGeometry(Part.LineSegment(App.Vector(-31.21904, -270, 0), App.Vector(-56.432243, -270, 0)), False)
sketch13.addGeometry(Part.LineSegment(App.Vector(-56.432243, -270, 0), App.Vector(-65.21904, -278.786797, 0)), False)
sketch13.addGeometry(Part.LineSegment(App.Vector(-65.21904, -278.786797, 0), App.Vector(-65.21904, -291.213203, 0)), False)
sketch13.addGeometry(Part.LineSegment(App.Vector(-65.21904, -291.213203, 0), App.Vector(-56.432243, -300, 0)), False)
sketch13.addGeometry(Part.LineSegment(App.Vector(-56.432243, -300, 0), App.Vector(27.885256, -300, 0)), False)
sketch13.addGeometry(Part.ArcOfCircle(Part.Circle(App.Vector(69.78096, -285, 0), App.Vector(0, 0, 1), 44.5), math.radians(-19.698989), math.radians(199.698989)), False)
sketch13.addGeometry(Part.LineSegment(App.Vector(111.676664, -300, 0), App.Vector(143.265652, -300, 0)), False)
sketch13.addGeometry(Part.ArcOfCircle(Part.Circle(App.Vector(69.78096, -285, 0), App.Vector(0, 0, 1), 75), math.radians(-11.536959), math.radians(151.425655)), False)
sketch13.addConstraint(Sketcher.Constraint("Tangent", 0, 1, 1, 1))
sketch13.addConstraint(Sketcher.Constraint("Coincident", 1, 2, 2, 1))
sketch13.addConstraint(Sketcher.Constraint("Coincident", 2, 2, 3, 1))
sketch13.addConstraint(Sketcher.Constraint("Coincident", 3, 2, 4, 1))
sketch13.addConstraint(Sketcher.Constraint("Coincident", 4, 2, 5, 1))
sketch13.addConstraint(Sketcher.Constraint("Coincident", 5, 2, 6, 2))
sketch13.addConstraint(Sketcher.Constraint("Coincident", 6, 1, 7, 1))
sketch13.addConstraint(Sketcher.Constraint("Coincident", 7, 2, 8, 1))
sketch13.addConstraint(Sketcher.Constraint("Tangent", 8, 2, 0, 2))
sketch13.addConstraint(Sketcher.Constraint("Horizontal", 1))
sketch13.addConstraint(Sketcher.Constraint("Vertical", 3))
sketch13.addConstraint(Sketcher.Constraint("Horizontal", 5))
sketch13.addConstraint(Sketcher.Constraint("Horizontal", 7))
sketch13.addConstraint(Sketcher.Constraint("Coincident", 8, 3, 6, 3))
sketch13.addConstraint(Sketcher.Constraint("Perpendicular", 2, 4))
sketch13.addConstraint(Sketcher.Constraint("Horizontal", 5, 2, 6, 1))
sketch13.addConstraint(Sketcher.Constraint("Vertical", 1, 2, 4, 2))
sketch13.addConstraint(Sketcher.Constraint("Equal", 2, 4))
sketch13.addConstraint(Sketcher.Constraint("Radius", 8, 75.0))
sketch13.addConstraint(Sketcher.Constraint("Radius", 6, 44.5))
sketch13.addConstraint(Sketcher.Constraint("DistanceY", 6, 3, -1, 1, 285.0))
sketch13.addConstraint(Sketcher.Constraint("DistanceY", 0, 1, -1, 1, 270.0))
sketch13.addConstraint(Sketcher.Constraint("DistanceY", 4, 2, -1, 1, 300.0))
sketch13.addConstraint(Sketcher.Constraint("DistanceX", 0, 3, 6, 3, 101.0))
sketch13.addConstraint(Sketcher.Constraint("DistanceX", 2, 2, 0, 1, 34.0))
sketch13.addConstraint(Sketcher.Constraint("DistanceX", 5, 1, 5, 2, 84.3175))
sketch13.addConstraint(Sketcher.Constraint("DistanceX", 0, 3, -1, 1, 31.21904))
pad13 = body13.newObject("PartDesign::Pad", "Pad012")
pad13.Profile = sketch13
pad13.Length = 19
body14 = doc.addObject("PartDesign::Body", "Body013")

sketch14 = body14.newObject("Sketcher::SketchObject", "Sketch013")
sketch14.AttachmentSupport = (doc.getObject("XY_Plane013"), [""])
sketch14.MapMode = "FlatFace"
sketch14.addGeometry(Part.LineSegment(App.Vector(-195.21904, -284.616768, 0), App.Vector(-179.835808, -300, 0)), False)
sketch14.addGeometry(Part.LineSegment(App.Vector(-179.835808, -300, 0), App.Vector(-80.21904, -300, 0)), False)
sketch14.addGeometry(Part.LineSegment(App.Vector(-80.21904, -300, 0), App.Vector(-80.21904, -276, 0)), False)
sketch14.addGeometry(Part.LineSegment(App.Vector(-80.21904, -276, 0), App.Vector(-133.090853, -276, 0)), False)
sketch14.addGeometry(Part.BSplineCurve([App.Vector(-133.090853, -276, 0), App.Vector(-117.349882, -197.897873, 0), App.Vector(-172.763398, -217.184381, 0)], [3, 3], [4.432814907, 6.522824034], False, 2, [1, 0.501897979, 1], False), False)
sketch14.addGeometry(Part.LineSegment(App.Vector(-172.763398, -217.184381, 0), App.Vector(-195.21904, -225, 0)), False)
sketch14.addGeometry(Part.LineSegment(App.Vector(-195.21904, -225, 0), App.Vector(-195.21904, -284.616768, 0)), False)
sketch14.addGeometry(Part.Circle(App.Vector(-118.21904, -288, 0), App.Vector(0, 0, 1), 3.673758), False)
sketch14.addGeometry(Part.Circle(App.Vector(-92.21904, -288, 0), App.Vector(0, 0, 1), 3.673758), False)
sketch14.addGeometry(Part.Circle(App.Vector(-176.034704, -277.748317, 0), App.Vector(0, 0, 1), 4.797878), False)
sketch14.addConstraint(Sketcher.Constraint("Block", 4))
sketch14.addConstraint(Sketcher.Constraint("Coincident", 0, 2, 1, 1))
sketch14.addConstraint(Sketcher.Constraint("Coincident", 1, 2, 2, 1))
sketch14.addConstraint(Sketcher.Constraint("Coincident", 2, 2, 3, 1))
sketch14.addConstraint(Sketcher.Constraint("Coincident", 3, 2, 4, 1))
sketch14.addConstraint(Sketcher.Constraint("Coincident", 4, 2, 5, 1))
sketch14.addConstraint(Sketcher.Constraint("Coincident", 5, 2, 6, 1))
sketch14.addConstraint(Sketcher.Constraint("Coincident", 6, 2, 0, 1))
sketch14.addConstraint(Sketcher.Constraint("Horizontal", 1))
sketch14.addConstraint(Sketcher.Constraint("Vertical", 2))
sketch14.addConstraint(Sketcher.Constraint("Horizontal", 3))
sketch14.addConstraint(Sketcher.Constraint("Vertical", 6))
sketch14.addConstraint(Sketcher.Constraint("Equal", 7, 8))
sketch14.addConstraint(Sketcher.Constraint("Horizontal", 7, 3, 8, 3))
sketch14.addConstraint(Sketcher.Constraint("DistanceY", 2, 1, 2, 2, 24.0))
sketch14.addConstraint(Sketcher.Constraint("Angle", 0, Q("-45 deg")))
sketch14.addConstraint(Sketcher.Constraint("DistanceY", 7, 3, -1, 1, 288.0))
sketch14.addConstraint(Sketcher.Constraint("DistanceY", 5, 2, -1, 1, 225.0))
sketch14.addConstraint(Sketcher.Constraint("DistanceX", 7, 3, 8, 3, 26.0))
sketch14.addConstraint(Sketcher.Constraint("DistanceX", 8, 3, 1, 2, 12.0))
sketch14.addConstraint(Sketcher.Constraint("DistanceX", 5, 2, 7, 3, 77.0))
sketch14.addConstraint(Sketcher.Constraint("Diameter", 7, 7.347515))
sketch14.addConstraint(Sketcher.Constraint("Diameter", 9, 9.595756))
sketch14.addConstraint(Sketcher.Constraint("DistanceX", 1, 1, 1, 2, 99.616768))
sketch14.addConstraint(Sketcher.Constraint("DistanceX", 3, 2, 3, 1, 52.871813))
sketch14.addConstraint(Sketcher.Constraint("DistanceX", 9, 3, 3, 2, 42.943851))
sketch14.addConstraint(Sketcher.Constraint("DistanceY", 6, 2, 9, 3, 6.868452))
pad14 = body14.newObject("PartDesign::Pad", "Pad013")
pad14.Profile = sketch14
pad14.Length = 19

doc.recompute()
